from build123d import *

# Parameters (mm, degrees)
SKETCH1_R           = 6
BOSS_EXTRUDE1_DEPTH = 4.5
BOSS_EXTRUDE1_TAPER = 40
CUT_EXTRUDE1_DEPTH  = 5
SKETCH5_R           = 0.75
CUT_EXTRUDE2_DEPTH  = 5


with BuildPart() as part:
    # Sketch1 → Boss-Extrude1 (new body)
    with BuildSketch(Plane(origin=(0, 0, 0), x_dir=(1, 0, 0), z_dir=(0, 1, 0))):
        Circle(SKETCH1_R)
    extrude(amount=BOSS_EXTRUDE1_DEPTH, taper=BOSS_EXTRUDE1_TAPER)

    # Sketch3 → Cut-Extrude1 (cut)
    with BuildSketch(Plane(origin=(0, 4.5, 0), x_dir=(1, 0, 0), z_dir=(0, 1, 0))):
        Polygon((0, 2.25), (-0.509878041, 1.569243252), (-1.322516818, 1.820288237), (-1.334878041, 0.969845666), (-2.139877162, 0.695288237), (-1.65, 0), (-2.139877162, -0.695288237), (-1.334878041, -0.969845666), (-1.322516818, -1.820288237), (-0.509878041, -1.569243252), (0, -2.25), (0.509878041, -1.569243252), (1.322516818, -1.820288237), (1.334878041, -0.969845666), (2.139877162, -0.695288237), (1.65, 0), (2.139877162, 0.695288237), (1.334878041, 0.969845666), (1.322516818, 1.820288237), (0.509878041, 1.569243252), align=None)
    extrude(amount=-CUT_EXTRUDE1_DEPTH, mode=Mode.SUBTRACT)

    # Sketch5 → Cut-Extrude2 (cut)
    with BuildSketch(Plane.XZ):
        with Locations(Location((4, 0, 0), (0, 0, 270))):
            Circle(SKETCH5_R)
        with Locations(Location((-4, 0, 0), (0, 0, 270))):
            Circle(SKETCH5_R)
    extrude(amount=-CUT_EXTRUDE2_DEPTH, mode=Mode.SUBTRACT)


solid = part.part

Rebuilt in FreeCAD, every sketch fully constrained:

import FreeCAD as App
import Part
import Sketcher
from FreeCAD import Vector

doc = App.newDocument("Part")
body = doc.addObject("PartDesign::Body", "Body")

sketch1 = body.newObject("Sketcher::SketchObject", "Sketch")
sketch1.AttachmentSupport = (doc.getObject("XZ_Plane"), [""])
sketch1.MapMode = "FlatFace"
sketch1.addGeometry(Part.Circle(Vector(0, 0, 0), Vector(0, 0, 1), 6), False)
sketch1.addConstraint([
    Sketcher.Constraint("Coincident", 0, 3, -1, 1),
    Sketcher.Constraint("Diameter", 0, 12.0),
])
pad1 = body.newObject("PartDesign::Pad", "Pad")
pad1.Profile = sketch1
pad1.Length = 4.5
pad1.Reversed = True
pad1.TaperAngle = -40

sketch2 = body.newObject("Sketcher::SketchObject", "Sketch001")
sketch2.AttachmentSupport = (doc.getObject("XZ_Plane"), [""])
sketch2.MapMode = "FlatFace"
sketch2.AttachmentOffset = App.Placement(Vector(0, 0, -4.5), App.Rotation())
sketch2.addGeometry([
    Part.LineSegment(Vector(0, -2.2, 0), Vector(-0.5, -1.6, 0)),
    Part.LineSegment(Vector(-0.5, -1.6, 0), Vector(-1.3, -1.8, 0)),
    Part.LineSegment(Vector(-1.3, -1.8, 0), Vector(-1.3, -1, 0)),
    Part.LineSegment(Vector(-1.3, -1, 0), Vector(-2.1, -0.7, 0)),
    Part.LineSegment(Vector(-2.1, -0.7, 0), Vector(-1.6, 0, 0)),
    Part.LineSegment(Vector(-1.6, 0, 0), Vector(-2.1, 0.7, 0)),
    Part.LineSegment(Vector(-2.1, 0.7, 0), Vector(-1.3, 1, 0)),
    Part.LineSegment(Vector(-1.3, 1, 0), Vector(-1.3, 1.8, 0)),
    Part.LineSegment(Vector(-1.3, 1.8, 0), Vector(-0.5, 1.6, 0)),
    Part.LineSegment(Vector(-0.5, 1.6, 0), Vector(0, 2.2, 0)),
    Part.LineSegment(Vector(0, 2.2, 0), Vector(0.5, 1.6, 0)),
    Part.LineSegment(Vector(0.5, 1.6, 0), Vector(1.3, 1.8, 0)),
    Part.LineSegment(Vector(1.3, 1.8, 0), Vector(1.3, 1, 0)),
    Part.LineSegment(Vector(1.3, 1, 0), Vector(2.1, 0.7, 0)),
    Part.LineSegment(Vector(2.1, 0.7, 0), Vector(1.6, 0, 0)),
    Part.LineSegment(Vector(1.6, 0, 0), Vector(2.1, -0.7, 0)),
    Part.LineSegment(Vector(2.1, -0.7, 0), Vector(1.3, -1, 0)),
    Part.LineSegment(Vector(1.3, -1, 0), Vector(1.3, -1.8, 0)),
    Part.LineSegment(Vector(1.3, -1.8, 0), Vector(0.5, -1.6, 0)),
    Part.LineSegment(Vector(0.5, -1.6, 0), Vector(0, -2.2, 0)),
], False)
sketch2.addConstraint([
    Sketcher.Constraint("Coincident", 0, 2, 1, 1),
    Sketcher.Constraint("Coincident", 1, 2, 2, 1),
    Sketcher.Constraint("Coincident", 2, 2, 3, 1),
    Sketcher.Constraint("Coincident", 3, 2, 4, 1),
    Sketcher.Constraint("Coincident", 4, 2, 5, 1),
    Sketcher.Constraint("Coincident", 5, 2, 6, 1),
    Sketcher.Constraint("Coincident", 6, 2, 7, 1),
    Sketcher.Constraint("Coincident", 7, 2, 8, 1),
    Sketcher.Constraint("Coincident", 8, 2, 9, 1),
    Sketcher.Constraint("Coincident", 9, 2, 10, 1),
    Sketcher.Constraint("Coincident", 10, 2, 11, 1),
    Sketcher.Constraint("Coincident", 11, 2, 12, 1),
    Sketcher.Constraint("Coincident", 12, 2, 13, 1),
    Sketcher.Constraint("Coincident", 13, 2, 14, 1),
    Sketcher.Constraint("Coincident", 14, 2, 15, 1),
    Sketcher.Constraint("Coincident", 15, 2, 16, 1),
    Sketcher.Constraint("Coincident", 16, 2, 17, 1),
    Sketcher.Constraint("Coincident", 17, 2, 18, 1),
    Sketcher.Constraint("Coincident", 18, 2, 19, 1),
    Sketcher.Constraint("Coincident", 19, 2, 0, 1),
    Sketcher.Constraint("Symmetric", 0, 2, 10, 2, -1, 1),
    Sketcher.Constraint("Symmetric", 1, 2, 11, 2, -1, 1),
    Sketcher.Constraint("Symmetric", 2, 2, 12, 2, -1, 1),
    Sketcher.Constraint("Symmetric", 3, 2, 13, 2, -1, 1),
    Sketcher.Constraint("Symmetric", 4, 2, 14, 2, -1, 1),
    Sketcher.Constraint("Symmetric", 5, 2, 15, 2, -1, 1),
    Sketcher.Constraint("Symmetric", 6, 2, 16, 2, -1, 1),
    Sketcher.Constraint("Symmetric", 7, 2, 17, 2, -1, 1),
    Sketcher.Constraint("Symmetric", 8, 2, 18, 2, -1, 1),
    Sketcher.Constraint("Symmetric", 9, 2, 19, 2, -1, 1),
    Sketcher.Constraint("Symmetric", 8, 2, 10, 2, -2),
    Sketcher.Constraint("Symmetric", 7, 2, 11, 2, -2),
    Sketcher.Constraint("Symmetric", 6, 2, 12, 2, -2),
    Sketcher.Constraint("Symmetric", 5, 2, 13, 2, -2),
    Sketcher.Constraint("PointOnObject", 4, 2, -1),
    Sketcher.Constraint("PointOnObject", 9, 2, -2),
    Sketcher.Constraint("Equal", 0, 1),
    Sketcher.Constraint("Equal", 1, 2),
    Sketcher.Constraint("Equal", 2, 3),
    Sketcher.Constraint("Equal", 3, 4),
    Sketcher.Constraint("DistanceX", 4, 2, -1, 1, 1.65),
    Sketcher.Constraint("DistanceY", -1, 1, 9, 2, 2.25),
    Sketcher.Constraint("DistanceX", 3, 2, 0, 2, 1.629999),
    Sketcher.Constraint("DistanceX", 2, 2, 0, 2, 0.825),
    Sketcher.Constraint("DistanceY", 1, 2, 3, 2, 1.125),
    Sketcher.Constraint("DistanceX", 0, 2, -1, 1, 0.509878),
])
pocket1 = body.newObject("PartDesign::Pocket", "Pocket")
pocket1.Profile = sketch2
pocket1.Length = 5
pocket1.Reversed = True

sketch3 = body.newObject("Sketcher::SketchObject", "Sketch002")
sketch3.AttachmentSupport = (doc.getObject("XZ_Plane"), [""])
sketch3.MapMode = "FlatFace"
sketch3.addGeometry([
    Part.Circle(Vector(4, 0, 0), Vector(0, 0, 1), 0.8),
    Part.Circle(Vector(-4, 0, 0), Vector(0, 0, 1), 0.8),
], False)
sketch3.addConstraint([
    Sketcher.Constraint("Equal", 0, 1),
    Sketcher.Constraint("Symmetric", 0, 3, 1, 3, -1, 1),
    Sketcher.Constraint("PointOnObject", 0, 3, -1),
    Sketcher.Constraint("Diameter", 0, 1.5),
    Sketcher.Constraint("DistanceX", -1, 1, 0, 3, 4.0),
])
pocket2 = body.newObject("PartDesign::Pocket", "Pocket001")
pocket2.Profile = sketch3
pocket2.Length = 5

doc.recompute()
